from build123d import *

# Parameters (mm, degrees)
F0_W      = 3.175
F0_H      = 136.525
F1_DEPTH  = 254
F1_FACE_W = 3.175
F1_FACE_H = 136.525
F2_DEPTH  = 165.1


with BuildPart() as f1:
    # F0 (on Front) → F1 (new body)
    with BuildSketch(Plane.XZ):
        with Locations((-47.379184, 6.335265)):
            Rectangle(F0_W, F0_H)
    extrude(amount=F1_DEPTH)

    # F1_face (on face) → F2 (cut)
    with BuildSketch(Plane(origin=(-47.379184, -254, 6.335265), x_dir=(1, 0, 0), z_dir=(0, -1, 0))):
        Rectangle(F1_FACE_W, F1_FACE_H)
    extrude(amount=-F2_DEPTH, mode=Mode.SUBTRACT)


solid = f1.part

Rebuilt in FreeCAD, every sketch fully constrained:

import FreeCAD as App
import Part
import Sketcher

V = App.Vector
Q = App.Units.Quantity

doc = App.newDocument("Part")
params = doc.addObject("Spreadsheet::Sheet", "Params")
for row, (alias, value) in enumerate([
    ("sketch1_width", "0.125 in"),
    ("sketch1_height", "5.375 in"),
    ("pad1_length", "10 in"),
    ("sketch2_width", "0.125 in"),
    ("sketch2_height", "5.375 in"),
    ("pocket1_length", "6.5 in"),
], start=1):
    params.set(f"A{row}", alias)
    params.set(f"B{row}", "=" + value)
    params.setAlias(f"B{row}", alias)

body = doc.addObject("PartDesign::Body", "Body")

# Sketch on XZ plane
sketch1 = body.newObject("Sketcher::SketchObject", "Sketch")
sketch1.AttachmentSupport = (doc.getObject("XZ_Plane"), [""])
sketch1.MapMode = "FlatFace"
sketch1.addGeometry(Part.LineSegment(V(-48.966684, 74.597765, 0), V(-48.966684, -61.927235, 0)), False)
sketch1.addGeometry(Part.LineSegment(V(-48.966684, -61.927235, 0), V(-45.791684, -61.927235, 0)), False)
sketch1.addGeometry(Part.LineSegment(V(-45.791684, -61.927235, 0), V(-45.791684, 74.597765, 0)), False)
sketch1.addGeometry(Part.LineSegment(V(-45.791684, 74.597765, 0), V(-48.966684, 74.597765, 0)), False)
sketch1.addConstraint(Sketcher.Constraint("Coincident", 0, 2, 1, 1))
sketch1.addConstraint(Sketcher.Constraint("Coincident", 1, 2, 2, 1))
sketch1.addConstraint(Sketcher.Constraint("Coincident", 2, 2, 3, 1))
sketch1.addConstraint(Sketcher.Constraint("Coincident", 3, 2, 0, 1))
sketch1.addConstraint(Sketcher.Constraint("Vertical", 0))
sketch1.addConstraint(Sketcher.Constraint("Horizontal", 1))
sketch1.addConstraint(Sketcher.Constraint("Vertical", 2))
sketch1.addConstraint(Sketcher.Constraint("Horizontal", 3))
sketch1.addConstraint(Sketcher.Constraint("DistanceX", 1, 1, 1, 2, Q("0.125 in")))
sketch1.addConstraint(Sketcher.Constraint("DistanceY", 0, 2, 0, 1, Q("5.375 in")))
sketch1.addConstraint(Sketcher.Constraint("DistanceX", 0, 2, -1, 1, Q("48.966684 mm")))
sketch1.addConstraint(Sketcher.Constraint("DistanceY", 0, 2, -1, 1, Q("61.927235 mm")))
sketch1.setExpression("Constraints[8]", "Params.sketch1_width")
sketch1.setExpression("Constraints[9]", "Params.sketch1_height")
pad1 = body.newObject("PartDesign::Pad", "Pad")
pad1.Profile = sketch1
pad1.setExpression("Length", "Params.pad1_length")

# Sketch on XZ plane
sketch2 = body.newObject("Sketcher::SketchObject", "Sketch001")
sketch2.AttachmentSupport = (doc.getObject("XZ_Plane"), [""])
sketch2.MapMode = "FlatFace"
sketch2.AttachmentOffset = App.Placement(V(0, 0, 10 * 25.4), App.Rotation())
sketch2.addGeometry(Part.LineSegment(V(-48.966684, 74.597765, 0), V(-48.966684, -61.927235, 0)), False)
sketch2.addGeometry(Part.LineSegment(V(-48.966684, -61.927235, 0), V(-45.791684, -61.927235, 0)), False)
sketch2.addGeometry(Part.LineSegment(V(-45.791684, -61.927235, 0), V(-45.791684, 74.597765, 0)), False)
sketch2.addGeometry(Part.LineSegment(V(-45.791684, 74.597765, 0), V(-48.966684, 74.597765, 0)), False)
sketch2.addConstraint(Sketcher.Constraint("Coincident", 0, 2, 1, 1))
sketch2.addConstraint(Sketcher.Constraint("Coincident", 1, 2, 2, 1))
sketch2.addConstraint(Sketcher.Constraint("Coincident", 2, 2, 3, 1))
sketch2.addConstraint(Sketcher.Constraint("Coincident", 3, 2, 0, 1))
sketch2.addConstraint(Sketcher.Constraint("Vertical", 0))
sketch2.addConstraint(Sketcher.Constraint("Horizontal", 1))
sketch2.addConstraint(Sketcher.Constraint("Vertical", 2))
sketch2.addConstraint(Sketcher.Constraint("Horizontal", 3))
sketch2.addConstraint(Sketcher.Constraint("DistanceX", 1, 1, 1, 2, Q("0.125 in")))
sketch2.addConstraint(Sketcher.Constraint("DistanceY", 0, 2, 0, 1, Q("5.375 in")))
sketch2.addConstraint(Sketcher.Constraint("DistanceX", 0, 2, -1, 1, Q("48.966684 mm")))
sketch2.addConstraint(Sketcher.Constraint("DistanceY", 0, 2, -1, 1, Q("61.927235 mm")))
sketch2.setExpression("Constraints[8]", "Params.sketch2_width")
sketch2.setExpression("Constraints[9]", "Params.sketch2_height")
pocket1 = body.newObject("PartDesign::Pocket", "Pocket")
pocket1.Profile = sketch2
pocket1.setExpression("Length", "Params.pocket1_length")

doc.recompute()
